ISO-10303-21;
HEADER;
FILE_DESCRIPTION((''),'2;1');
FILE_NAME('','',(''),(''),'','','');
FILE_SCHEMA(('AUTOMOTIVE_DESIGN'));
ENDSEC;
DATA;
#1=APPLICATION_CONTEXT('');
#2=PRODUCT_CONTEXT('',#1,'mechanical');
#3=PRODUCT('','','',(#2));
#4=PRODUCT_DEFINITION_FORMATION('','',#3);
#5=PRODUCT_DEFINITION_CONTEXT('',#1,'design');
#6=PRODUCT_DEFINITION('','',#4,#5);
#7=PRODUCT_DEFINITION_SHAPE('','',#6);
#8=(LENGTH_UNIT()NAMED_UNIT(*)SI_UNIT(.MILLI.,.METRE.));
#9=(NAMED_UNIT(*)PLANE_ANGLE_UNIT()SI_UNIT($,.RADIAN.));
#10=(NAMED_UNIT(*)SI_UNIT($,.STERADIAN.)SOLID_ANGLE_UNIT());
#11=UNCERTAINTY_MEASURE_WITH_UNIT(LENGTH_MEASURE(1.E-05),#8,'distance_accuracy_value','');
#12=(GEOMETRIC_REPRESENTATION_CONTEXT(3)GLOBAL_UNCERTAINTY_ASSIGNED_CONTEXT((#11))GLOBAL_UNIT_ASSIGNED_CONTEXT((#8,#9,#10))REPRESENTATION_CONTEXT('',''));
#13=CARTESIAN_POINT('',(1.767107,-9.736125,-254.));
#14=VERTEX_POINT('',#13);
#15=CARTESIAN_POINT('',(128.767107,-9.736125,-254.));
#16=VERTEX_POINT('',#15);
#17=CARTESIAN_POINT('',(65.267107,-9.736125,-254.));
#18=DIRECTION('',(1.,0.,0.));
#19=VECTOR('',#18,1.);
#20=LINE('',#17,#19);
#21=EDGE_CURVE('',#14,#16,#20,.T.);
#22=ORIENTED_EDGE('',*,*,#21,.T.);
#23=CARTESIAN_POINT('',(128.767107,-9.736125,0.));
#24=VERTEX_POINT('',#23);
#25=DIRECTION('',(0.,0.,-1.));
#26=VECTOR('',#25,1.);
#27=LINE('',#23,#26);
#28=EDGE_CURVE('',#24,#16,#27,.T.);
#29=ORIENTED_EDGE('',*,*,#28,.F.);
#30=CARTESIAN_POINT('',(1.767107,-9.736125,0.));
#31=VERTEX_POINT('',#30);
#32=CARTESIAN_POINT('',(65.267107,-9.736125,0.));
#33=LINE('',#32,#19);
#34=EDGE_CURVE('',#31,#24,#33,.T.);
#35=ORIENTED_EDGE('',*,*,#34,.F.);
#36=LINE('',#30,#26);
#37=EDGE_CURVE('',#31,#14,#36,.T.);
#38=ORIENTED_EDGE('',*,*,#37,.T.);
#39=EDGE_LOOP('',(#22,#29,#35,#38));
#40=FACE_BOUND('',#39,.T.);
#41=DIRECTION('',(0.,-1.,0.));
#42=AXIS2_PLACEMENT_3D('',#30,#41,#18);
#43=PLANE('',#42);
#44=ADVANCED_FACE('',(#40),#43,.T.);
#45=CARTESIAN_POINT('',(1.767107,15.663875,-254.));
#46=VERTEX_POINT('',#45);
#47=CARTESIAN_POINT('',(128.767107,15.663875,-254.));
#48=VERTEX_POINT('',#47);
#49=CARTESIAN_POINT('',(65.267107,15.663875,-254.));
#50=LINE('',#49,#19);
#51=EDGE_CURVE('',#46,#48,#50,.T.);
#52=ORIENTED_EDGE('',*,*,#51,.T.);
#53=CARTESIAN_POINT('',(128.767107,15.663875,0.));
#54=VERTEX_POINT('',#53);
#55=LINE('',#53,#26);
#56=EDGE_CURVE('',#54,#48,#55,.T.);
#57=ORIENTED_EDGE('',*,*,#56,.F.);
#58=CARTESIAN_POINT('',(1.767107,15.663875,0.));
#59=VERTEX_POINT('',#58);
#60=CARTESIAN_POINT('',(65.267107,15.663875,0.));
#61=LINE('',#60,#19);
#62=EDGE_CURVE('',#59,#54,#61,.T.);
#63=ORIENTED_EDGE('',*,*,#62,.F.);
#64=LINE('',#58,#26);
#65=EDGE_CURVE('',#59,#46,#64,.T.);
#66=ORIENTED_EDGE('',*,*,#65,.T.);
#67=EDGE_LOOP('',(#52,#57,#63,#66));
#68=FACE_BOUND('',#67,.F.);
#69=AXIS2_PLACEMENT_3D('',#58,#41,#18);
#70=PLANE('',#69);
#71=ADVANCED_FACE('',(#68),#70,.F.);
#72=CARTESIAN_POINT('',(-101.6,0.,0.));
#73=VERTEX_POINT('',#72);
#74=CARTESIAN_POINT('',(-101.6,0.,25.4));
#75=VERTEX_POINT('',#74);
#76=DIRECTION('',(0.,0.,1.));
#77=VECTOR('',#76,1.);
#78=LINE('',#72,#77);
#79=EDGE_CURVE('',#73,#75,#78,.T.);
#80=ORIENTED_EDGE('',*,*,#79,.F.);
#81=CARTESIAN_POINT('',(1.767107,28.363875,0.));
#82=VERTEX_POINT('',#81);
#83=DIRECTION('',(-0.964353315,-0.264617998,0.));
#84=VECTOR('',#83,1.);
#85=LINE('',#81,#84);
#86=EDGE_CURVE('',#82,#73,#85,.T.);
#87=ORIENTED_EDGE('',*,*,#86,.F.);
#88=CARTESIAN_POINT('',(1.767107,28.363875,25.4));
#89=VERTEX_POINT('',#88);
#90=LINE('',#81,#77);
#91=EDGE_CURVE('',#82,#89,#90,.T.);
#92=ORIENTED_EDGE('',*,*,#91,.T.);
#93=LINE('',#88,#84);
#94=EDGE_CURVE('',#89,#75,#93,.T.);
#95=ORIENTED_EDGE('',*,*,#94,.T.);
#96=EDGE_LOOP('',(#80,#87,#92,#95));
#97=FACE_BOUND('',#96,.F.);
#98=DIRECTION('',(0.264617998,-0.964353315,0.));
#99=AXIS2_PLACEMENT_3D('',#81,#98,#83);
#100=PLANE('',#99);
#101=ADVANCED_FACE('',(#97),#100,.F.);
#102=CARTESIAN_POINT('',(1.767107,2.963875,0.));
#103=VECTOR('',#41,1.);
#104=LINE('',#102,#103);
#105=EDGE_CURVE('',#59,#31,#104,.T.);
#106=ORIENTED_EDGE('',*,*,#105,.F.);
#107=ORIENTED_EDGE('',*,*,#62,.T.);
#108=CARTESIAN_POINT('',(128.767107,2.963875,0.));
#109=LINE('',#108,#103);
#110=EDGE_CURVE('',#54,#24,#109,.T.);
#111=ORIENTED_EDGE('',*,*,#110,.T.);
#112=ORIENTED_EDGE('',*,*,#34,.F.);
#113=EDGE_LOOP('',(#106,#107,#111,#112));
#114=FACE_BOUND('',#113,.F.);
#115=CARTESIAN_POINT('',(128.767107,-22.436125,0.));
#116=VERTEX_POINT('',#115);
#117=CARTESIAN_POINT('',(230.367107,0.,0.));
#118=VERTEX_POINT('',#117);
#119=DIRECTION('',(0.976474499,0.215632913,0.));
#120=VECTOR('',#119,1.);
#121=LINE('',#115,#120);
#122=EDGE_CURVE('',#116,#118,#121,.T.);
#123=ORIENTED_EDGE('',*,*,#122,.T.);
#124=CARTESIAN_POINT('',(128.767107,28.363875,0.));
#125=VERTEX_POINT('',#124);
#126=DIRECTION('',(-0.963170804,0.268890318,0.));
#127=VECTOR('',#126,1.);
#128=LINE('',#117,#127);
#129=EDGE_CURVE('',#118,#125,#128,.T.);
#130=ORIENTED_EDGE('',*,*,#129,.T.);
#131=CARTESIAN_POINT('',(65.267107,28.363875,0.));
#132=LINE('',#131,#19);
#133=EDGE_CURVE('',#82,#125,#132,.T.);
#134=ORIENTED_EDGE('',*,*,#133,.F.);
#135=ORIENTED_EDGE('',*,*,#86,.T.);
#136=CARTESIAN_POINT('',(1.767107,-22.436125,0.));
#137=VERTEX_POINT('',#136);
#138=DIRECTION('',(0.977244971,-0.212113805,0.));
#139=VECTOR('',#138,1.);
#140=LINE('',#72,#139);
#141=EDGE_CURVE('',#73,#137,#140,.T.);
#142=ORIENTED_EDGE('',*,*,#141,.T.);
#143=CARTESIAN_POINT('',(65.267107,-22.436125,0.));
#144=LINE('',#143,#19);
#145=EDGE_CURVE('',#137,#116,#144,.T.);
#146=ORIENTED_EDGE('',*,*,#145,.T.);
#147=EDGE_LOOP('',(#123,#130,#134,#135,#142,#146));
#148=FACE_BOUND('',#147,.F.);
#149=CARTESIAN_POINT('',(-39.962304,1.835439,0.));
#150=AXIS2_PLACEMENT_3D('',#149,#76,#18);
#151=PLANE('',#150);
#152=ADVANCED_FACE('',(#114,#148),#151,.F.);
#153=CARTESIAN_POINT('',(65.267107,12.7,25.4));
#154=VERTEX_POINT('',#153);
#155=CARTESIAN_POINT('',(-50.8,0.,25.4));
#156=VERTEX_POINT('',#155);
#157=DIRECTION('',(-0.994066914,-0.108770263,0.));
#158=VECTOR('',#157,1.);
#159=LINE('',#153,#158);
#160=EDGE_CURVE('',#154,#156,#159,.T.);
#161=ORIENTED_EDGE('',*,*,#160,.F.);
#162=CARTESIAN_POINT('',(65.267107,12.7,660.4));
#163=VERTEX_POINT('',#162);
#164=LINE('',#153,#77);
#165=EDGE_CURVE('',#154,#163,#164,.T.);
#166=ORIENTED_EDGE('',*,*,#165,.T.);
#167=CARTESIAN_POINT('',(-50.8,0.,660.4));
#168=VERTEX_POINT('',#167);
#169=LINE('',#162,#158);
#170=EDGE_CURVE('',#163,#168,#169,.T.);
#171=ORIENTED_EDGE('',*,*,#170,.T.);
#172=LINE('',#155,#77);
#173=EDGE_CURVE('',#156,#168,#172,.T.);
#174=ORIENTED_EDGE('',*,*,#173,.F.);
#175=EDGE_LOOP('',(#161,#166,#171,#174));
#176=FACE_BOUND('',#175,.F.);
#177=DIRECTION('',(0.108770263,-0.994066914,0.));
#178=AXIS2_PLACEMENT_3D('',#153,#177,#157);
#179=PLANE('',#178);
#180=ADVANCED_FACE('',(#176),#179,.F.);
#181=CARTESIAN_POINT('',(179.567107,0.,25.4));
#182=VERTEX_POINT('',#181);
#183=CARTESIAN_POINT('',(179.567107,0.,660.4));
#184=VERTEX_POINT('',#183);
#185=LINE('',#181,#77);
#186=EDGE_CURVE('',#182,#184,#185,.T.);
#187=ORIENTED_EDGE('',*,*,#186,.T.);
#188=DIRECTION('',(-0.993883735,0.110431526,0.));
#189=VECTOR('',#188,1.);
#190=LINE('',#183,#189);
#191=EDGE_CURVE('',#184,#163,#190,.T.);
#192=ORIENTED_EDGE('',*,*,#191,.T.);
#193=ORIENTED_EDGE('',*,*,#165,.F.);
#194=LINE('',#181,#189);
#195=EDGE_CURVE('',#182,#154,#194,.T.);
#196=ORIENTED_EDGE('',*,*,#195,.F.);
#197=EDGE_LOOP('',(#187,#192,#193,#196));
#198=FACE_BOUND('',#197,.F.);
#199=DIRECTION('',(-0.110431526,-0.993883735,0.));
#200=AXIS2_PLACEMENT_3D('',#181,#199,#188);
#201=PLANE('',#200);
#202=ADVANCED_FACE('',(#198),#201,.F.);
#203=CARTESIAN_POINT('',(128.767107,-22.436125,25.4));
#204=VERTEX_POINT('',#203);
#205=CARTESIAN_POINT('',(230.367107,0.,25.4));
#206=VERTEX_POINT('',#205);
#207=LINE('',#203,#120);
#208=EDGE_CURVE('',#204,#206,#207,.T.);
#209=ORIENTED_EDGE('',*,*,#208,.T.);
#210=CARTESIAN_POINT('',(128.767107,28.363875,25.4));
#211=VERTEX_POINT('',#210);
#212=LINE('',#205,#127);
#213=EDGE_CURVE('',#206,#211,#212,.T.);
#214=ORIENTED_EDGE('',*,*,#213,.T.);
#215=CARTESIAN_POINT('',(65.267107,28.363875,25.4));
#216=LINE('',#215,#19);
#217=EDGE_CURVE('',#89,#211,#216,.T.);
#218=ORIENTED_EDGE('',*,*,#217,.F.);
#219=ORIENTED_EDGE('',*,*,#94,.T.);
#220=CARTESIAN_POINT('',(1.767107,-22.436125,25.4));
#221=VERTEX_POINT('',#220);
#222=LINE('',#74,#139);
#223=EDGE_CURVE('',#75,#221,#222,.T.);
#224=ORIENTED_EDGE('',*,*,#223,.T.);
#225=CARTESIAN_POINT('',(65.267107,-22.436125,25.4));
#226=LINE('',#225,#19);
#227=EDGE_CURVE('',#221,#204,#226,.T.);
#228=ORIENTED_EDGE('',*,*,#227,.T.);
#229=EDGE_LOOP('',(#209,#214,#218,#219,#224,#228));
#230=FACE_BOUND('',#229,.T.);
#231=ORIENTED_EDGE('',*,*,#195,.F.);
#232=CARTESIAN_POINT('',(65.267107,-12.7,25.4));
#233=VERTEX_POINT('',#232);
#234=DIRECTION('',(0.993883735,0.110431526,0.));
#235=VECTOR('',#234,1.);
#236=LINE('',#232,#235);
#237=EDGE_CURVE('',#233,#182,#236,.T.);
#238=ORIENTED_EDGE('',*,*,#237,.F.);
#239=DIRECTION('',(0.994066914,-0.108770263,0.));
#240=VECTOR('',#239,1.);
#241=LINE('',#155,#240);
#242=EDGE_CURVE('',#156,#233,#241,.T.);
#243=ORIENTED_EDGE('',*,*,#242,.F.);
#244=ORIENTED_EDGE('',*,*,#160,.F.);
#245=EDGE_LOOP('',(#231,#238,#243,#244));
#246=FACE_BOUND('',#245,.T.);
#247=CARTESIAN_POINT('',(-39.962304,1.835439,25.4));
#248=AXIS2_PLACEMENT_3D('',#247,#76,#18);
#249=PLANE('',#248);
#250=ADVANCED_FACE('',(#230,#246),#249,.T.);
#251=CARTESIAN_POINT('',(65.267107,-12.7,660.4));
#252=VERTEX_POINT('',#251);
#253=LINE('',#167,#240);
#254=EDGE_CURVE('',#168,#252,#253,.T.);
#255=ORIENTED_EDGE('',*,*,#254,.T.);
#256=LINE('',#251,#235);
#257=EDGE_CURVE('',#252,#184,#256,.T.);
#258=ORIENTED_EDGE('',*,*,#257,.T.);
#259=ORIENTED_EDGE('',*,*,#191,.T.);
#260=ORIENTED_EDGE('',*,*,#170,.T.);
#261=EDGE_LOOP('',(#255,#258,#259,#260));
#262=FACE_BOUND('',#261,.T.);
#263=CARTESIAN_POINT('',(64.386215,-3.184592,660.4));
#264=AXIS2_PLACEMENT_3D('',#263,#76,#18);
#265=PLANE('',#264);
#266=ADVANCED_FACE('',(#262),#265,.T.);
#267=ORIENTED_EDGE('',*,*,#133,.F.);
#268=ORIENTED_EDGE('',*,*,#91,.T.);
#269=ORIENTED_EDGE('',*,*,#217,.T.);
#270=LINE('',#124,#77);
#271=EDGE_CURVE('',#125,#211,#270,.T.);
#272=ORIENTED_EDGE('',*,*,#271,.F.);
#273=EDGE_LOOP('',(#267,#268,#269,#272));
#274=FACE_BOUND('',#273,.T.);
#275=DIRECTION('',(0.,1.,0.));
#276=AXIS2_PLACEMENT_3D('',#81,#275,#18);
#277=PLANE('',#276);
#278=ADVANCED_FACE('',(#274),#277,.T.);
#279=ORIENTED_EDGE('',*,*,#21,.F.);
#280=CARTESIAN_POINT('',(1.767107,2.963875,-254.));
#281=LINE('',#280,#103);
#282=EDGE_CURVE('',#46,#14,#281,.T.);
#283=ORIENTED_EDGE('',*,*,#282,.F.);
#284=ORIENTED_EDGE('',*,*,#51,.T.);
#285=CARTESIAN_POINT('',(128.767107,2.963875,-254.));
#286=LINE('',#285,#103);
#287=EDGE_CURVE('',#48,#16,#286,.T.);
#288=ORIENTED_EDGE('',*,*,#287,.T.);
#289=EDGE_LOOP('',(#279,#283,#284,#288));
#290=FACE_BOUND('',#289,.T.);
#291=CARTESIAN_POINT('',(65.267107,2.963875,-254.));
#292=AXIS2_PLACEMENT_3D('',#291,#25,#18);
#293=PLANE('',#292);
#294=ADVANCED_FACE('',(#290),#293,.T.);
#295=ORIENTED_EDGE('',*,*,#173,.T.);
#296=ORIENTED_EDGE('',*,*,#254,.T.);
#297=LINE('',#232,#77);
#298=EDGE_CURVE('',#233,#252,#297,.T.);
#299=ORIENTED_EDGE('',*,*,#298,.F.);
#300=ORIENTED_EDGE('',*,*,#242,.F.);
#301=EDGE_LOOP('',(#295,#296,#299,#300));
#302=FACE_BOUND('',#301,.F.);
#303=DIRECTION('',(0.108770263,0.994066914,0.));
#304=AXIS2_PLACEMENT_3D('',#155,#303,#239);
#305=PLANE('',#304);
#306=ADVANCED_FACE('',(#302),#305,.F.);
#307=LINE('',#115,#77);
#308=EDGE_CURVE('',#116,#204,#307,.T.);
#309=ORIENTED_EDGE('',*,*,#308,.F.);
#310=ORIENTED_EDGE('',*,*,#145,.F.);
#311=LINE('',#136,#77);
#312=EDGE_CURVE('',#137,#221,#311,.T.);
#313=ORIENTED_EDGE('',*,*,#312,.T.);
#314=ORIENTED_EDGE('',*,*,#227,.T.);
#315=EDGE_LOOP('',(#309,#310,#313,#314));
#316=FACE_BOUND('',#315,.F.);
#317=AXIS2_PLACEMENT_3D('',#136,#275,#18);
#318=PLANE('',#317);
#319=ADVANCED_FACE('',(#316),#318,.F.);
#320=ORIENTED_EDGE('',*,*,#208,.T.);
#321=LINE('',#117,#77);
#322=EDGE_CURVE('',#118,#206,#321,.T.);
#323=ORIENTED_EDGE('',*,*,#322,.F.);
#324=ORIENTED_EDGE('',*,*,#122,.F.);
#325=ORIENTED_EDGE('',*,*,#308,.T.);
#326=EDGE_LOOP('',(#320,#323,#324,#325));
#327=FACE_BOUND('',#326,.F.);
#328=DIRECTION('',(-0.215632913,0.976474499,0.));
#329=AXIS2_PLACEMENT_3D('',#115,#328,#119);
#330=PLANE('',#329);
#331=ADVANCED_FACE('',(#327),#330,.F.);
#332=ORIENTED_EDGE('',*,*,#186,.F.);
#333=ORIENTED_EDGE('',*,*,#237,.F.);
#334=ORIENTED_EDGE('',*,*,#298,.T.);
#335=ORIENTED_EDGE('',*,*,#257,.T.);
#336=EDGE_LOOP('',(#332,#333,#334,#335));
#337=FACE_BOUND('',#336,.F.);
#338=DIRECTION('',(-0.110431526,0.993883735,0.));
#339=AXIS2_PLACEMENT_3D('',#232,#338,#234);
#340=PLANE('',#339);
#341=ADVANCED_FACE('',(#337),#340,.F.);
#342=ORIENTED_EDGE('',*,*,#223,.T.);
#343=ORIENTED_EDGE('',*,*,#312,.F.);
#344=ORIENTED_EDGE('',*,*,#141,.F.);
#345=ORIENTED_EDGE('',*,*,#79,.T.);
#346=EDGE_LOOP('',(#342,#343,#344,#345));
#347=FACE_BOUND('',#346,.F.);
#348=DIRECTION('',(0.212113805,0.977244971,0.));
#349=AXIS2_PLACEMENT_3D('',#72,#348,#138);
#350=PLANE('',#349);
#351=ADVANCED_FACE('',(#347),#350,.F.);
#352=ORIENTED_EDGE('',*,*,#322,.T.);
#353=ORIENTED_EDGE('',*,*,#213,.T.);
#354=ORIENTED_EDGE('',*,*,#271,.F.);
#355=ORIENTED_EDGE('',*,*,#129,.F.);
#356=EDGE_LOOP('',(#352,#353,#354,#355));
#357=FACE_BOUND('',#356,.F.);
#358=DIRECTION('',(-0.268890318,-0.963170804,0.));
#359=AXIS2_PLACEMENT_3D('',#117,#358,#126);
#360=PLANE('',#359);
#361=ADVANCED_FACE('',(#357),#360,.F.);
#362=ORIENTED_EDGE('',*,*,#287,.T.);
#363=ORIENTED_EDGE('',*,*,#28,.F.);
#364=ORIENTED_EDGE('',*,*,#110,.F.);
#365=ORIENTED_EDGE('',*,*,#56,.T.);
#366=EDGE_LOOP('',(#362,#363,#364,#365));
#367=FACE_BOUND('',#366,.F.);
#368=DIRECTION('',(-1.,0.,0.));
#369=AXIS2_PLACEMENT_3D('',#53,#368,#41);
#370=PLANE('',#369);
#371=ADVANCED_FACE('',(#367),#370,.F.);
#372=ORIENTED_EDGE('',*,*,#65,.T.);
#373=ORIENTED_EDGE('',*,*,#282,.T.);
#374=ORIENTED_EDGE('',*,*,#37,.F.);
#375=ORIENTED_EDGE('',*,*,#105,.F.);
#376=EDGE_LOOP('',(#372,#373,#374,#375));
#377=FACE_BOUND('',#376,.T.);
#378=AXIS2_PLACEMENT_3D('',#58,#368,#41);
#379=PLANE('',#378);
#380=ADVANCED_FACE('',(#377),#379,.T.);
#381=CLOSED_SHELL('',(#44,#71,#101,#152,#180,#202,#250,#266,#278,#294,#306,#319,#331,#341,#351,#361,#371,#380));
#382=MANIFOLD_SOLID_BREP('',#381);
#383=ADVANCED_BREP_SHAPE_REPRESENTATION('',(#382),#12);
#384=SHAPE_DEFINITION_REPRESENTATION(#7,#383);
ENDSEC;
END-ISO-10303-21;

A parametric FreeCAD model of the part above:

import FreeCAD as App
import Part
import Sketcher
Q = App.Units.Quantity

doc = App.newDocument("Part")
body = doc.addObject("PartDesign::Body", "Body")

# Sketch on XY plane
sketch1 = body.newObject("Sketcher::SketchObject", "Sketch")
sketch1.AttachmentSupport = (doc.getObject("XY_Plane"), [""])
sketch1.MapMode = "FlatFace"
sketch1.addGeometry([
    Part.LineSegment(App.Vector(2, 28, 0), App.Vector(-102, 0, 0)),  # 0
    Part.LineSegment(App.Vector(-102, 0, 0), App.Vector(2, -22, 0)),  # 1
    Part.LineSegment(App.Vector(2, -22, 0), App.Vector(129, -22, 0)),  # 2
    Part.LineSegment(App.Vector(129, -22, 0), App.Vector(230, 0, 0)),  # 3
    Part.LineSegment(App.Vector(230, 0, 0), App.Vector(129, 28, 0)),  # 4
    Part.LineSegment(App.Vector(129, 28, 0), App.Vector(2, 28, 0)),  # 5
], False)
sketch1.addConstraint([
    Sketcher.Constraint("Coincident", 0, 2, 1, 1),
    Sketcher.Constraint("Coincident", 1, 2, 2, 1),
    Sketcher.Constraint("Coincident", 2, 2, 3, 1),
    Sketcher.Constraint("Coincident", 3, 2, 4, 1),
    Sketcher.Constraint("Coincident", 4, 2, 5, 1),
    Sketcher.Constraint("Coincident", 5, 2, 0, 1),
    Sketcher.Constraint("Horizontal", 2),
    Sketcher.Constraint("Horizontal", 5),
    Sketcher.Constraint("PointOnObject", 0, 2, -1),
    Sketcher.Constraint("PointOnObject", 3, 2, -1),
    Sketcher.Constraint("Vertical", 2, 2, 4, 2),
    Sketcher.Constraint("Vertical", 1, 2, 5, 2),
    Sketcher.Constraint("DistanceX", 2, 1, 2, 2, Q("5 in")),
    Sketcher.Constraint("DistanceX", 0, 2, -1, 1, Q("4 in")),
    Sketcher.Constraint("DistanceX", 2, 2, 3, 2, Q("4 in")),
    Sketcher.Constraint("DistanceY", 2, 2, 4, 2, Q("2 in")),
    Sketcher.Constraint("Distance", 0, Q("4.2200002 in")),
    Sketcher.Constraint("Distance", 1, Q("105.773997 mm")),
])
pad1 = body.newObject("PartDesign::Pad", "Pad")
pad1.Profile = sketch1
pad1.Length = Q("1 in")

# Sketch on XY plane
sketch2 = body.newObject("Sketcher::SketchObject", "Sketch001")
sketch2.AttachmentSupport = (doc.getObject("XY_Plane"), [""])
sketch2.MapMode = "FlatFace"
sketch2.AttachmentOffset = App.Placement(App.Vector(0, 0, 1 * 25.4), App.Rotation())
sketch2.addGeometry([
    Part.LineSegment(App.Vector(-51, 0, 0), App.Vector(65, -13, 0)),
    Part.LineSegment(App.Vector(65, -13, 0), App.Vector(180, 0, 0)),
    Part.LineSegment(App.Vector(180, 0, 0), App.Vector(65, 13, 0)),
    Part.LineSegment(App.Vector(65, 13, 0), App.Vector(-51, 0, 0)),
], False)
sketch2.addConstraint([
    Sketcher.Constraint("Coincident", 0, 2, 1, 1),
    Sketcher.Constraint("Coincident", 1, 2, 2, 1),
    Sketcher.Constraint("Coincident", 2, 2, 3, 1),
    Sketcher.Constraint("Coincident", 3, 2, 0, 1),
    Sketcher.Constraint("Symmetric", 0, 2, 2, 2, -1),
    Sketcher.Constraint("PointOnObject", 1, 2, -1),
    Sketcher.Constraint("PointOnObject", 3, 2, -1),
    Sketcher.Constraint("DistanceX", 3, 2, -1, 1, Q("2 in")),
    Sketcher.Constraint("DistanceY", 0, 2, 2, 2, Q("1 in")),
    Sketcher.Constraint("DistanceX", 0, 2, 1, 2, Q("4.5 in")),
    Sketcher.Constraint("Distance", 0, Q("116.759853 mm")),
])
pad2 = body.newObject("PartDesign::Pad", "Pad001")
pad2.Profile = sketch2
pad2.Length = Q("25 in")

# Sketch on XY plane
sketch3 = body.newObject("Sketcher::SketchObject", "Sketch002")
sketch3.AttachmentSupport = (doc.getObject("XY_Plane"), [""])
sketch3.MapMode = "FlatFace"
sketch3.addGeometry([
    Part.LineSegment(App.Vector(2, -10, 0), App.Vector(2, 16, 0)),
    Part.LineSegment(App.Vector(2, 16, 0), App.Vector(129, 16, 0)),
    Part.LineSegment(App.Vector(129, 16, 0), App.Vector(129, -10, 0)),
    Part.LineSegment(App.Vector(129, -10, 0), App.Vector(2, -10, 0)),
], False)
sketch3.addConstraint([
    Sketcher.Constraint("Coincident", 0, 2, 1, 1),
    Sketcher.Constraint("Coincident", 1, 2, 2, 1),
    Sketcher.Constraint("Coincident", 2, 2, 3, 1),
    Sketcher.Constraint("Coincident", 3, 2, 0, 1),
    Sketcher.Constraint("Vertical", 0),
    Sketcher.Constraint("Horizontal", 1),
    Sketcher.Constraint("Vertical", 2),
    Sketcher.Constraint("Horizontal", 3),
    Sketcher.Constraint("DistanceX", 1, 1, 1, 2, Q("5 in")),
    Sketcher.Constraint("DistanceY", 0, 1, 0, 2, Q("1 in")),
    Sketcher.Constraint("DistanceX", -1, 1, 0, 2, Q("1.767107 mm")),
    Sketcher.Constraint("DistanceY", -1, 1, 0, 2, Q("15.663875 mm")),
])
pad3 = body.newObject("PartDesign::Pad", "Pad002")
pad3.Profile = sketch3
pad3.Length = Q("10 in")
pad3.Reversed = True

doc.recompute()
